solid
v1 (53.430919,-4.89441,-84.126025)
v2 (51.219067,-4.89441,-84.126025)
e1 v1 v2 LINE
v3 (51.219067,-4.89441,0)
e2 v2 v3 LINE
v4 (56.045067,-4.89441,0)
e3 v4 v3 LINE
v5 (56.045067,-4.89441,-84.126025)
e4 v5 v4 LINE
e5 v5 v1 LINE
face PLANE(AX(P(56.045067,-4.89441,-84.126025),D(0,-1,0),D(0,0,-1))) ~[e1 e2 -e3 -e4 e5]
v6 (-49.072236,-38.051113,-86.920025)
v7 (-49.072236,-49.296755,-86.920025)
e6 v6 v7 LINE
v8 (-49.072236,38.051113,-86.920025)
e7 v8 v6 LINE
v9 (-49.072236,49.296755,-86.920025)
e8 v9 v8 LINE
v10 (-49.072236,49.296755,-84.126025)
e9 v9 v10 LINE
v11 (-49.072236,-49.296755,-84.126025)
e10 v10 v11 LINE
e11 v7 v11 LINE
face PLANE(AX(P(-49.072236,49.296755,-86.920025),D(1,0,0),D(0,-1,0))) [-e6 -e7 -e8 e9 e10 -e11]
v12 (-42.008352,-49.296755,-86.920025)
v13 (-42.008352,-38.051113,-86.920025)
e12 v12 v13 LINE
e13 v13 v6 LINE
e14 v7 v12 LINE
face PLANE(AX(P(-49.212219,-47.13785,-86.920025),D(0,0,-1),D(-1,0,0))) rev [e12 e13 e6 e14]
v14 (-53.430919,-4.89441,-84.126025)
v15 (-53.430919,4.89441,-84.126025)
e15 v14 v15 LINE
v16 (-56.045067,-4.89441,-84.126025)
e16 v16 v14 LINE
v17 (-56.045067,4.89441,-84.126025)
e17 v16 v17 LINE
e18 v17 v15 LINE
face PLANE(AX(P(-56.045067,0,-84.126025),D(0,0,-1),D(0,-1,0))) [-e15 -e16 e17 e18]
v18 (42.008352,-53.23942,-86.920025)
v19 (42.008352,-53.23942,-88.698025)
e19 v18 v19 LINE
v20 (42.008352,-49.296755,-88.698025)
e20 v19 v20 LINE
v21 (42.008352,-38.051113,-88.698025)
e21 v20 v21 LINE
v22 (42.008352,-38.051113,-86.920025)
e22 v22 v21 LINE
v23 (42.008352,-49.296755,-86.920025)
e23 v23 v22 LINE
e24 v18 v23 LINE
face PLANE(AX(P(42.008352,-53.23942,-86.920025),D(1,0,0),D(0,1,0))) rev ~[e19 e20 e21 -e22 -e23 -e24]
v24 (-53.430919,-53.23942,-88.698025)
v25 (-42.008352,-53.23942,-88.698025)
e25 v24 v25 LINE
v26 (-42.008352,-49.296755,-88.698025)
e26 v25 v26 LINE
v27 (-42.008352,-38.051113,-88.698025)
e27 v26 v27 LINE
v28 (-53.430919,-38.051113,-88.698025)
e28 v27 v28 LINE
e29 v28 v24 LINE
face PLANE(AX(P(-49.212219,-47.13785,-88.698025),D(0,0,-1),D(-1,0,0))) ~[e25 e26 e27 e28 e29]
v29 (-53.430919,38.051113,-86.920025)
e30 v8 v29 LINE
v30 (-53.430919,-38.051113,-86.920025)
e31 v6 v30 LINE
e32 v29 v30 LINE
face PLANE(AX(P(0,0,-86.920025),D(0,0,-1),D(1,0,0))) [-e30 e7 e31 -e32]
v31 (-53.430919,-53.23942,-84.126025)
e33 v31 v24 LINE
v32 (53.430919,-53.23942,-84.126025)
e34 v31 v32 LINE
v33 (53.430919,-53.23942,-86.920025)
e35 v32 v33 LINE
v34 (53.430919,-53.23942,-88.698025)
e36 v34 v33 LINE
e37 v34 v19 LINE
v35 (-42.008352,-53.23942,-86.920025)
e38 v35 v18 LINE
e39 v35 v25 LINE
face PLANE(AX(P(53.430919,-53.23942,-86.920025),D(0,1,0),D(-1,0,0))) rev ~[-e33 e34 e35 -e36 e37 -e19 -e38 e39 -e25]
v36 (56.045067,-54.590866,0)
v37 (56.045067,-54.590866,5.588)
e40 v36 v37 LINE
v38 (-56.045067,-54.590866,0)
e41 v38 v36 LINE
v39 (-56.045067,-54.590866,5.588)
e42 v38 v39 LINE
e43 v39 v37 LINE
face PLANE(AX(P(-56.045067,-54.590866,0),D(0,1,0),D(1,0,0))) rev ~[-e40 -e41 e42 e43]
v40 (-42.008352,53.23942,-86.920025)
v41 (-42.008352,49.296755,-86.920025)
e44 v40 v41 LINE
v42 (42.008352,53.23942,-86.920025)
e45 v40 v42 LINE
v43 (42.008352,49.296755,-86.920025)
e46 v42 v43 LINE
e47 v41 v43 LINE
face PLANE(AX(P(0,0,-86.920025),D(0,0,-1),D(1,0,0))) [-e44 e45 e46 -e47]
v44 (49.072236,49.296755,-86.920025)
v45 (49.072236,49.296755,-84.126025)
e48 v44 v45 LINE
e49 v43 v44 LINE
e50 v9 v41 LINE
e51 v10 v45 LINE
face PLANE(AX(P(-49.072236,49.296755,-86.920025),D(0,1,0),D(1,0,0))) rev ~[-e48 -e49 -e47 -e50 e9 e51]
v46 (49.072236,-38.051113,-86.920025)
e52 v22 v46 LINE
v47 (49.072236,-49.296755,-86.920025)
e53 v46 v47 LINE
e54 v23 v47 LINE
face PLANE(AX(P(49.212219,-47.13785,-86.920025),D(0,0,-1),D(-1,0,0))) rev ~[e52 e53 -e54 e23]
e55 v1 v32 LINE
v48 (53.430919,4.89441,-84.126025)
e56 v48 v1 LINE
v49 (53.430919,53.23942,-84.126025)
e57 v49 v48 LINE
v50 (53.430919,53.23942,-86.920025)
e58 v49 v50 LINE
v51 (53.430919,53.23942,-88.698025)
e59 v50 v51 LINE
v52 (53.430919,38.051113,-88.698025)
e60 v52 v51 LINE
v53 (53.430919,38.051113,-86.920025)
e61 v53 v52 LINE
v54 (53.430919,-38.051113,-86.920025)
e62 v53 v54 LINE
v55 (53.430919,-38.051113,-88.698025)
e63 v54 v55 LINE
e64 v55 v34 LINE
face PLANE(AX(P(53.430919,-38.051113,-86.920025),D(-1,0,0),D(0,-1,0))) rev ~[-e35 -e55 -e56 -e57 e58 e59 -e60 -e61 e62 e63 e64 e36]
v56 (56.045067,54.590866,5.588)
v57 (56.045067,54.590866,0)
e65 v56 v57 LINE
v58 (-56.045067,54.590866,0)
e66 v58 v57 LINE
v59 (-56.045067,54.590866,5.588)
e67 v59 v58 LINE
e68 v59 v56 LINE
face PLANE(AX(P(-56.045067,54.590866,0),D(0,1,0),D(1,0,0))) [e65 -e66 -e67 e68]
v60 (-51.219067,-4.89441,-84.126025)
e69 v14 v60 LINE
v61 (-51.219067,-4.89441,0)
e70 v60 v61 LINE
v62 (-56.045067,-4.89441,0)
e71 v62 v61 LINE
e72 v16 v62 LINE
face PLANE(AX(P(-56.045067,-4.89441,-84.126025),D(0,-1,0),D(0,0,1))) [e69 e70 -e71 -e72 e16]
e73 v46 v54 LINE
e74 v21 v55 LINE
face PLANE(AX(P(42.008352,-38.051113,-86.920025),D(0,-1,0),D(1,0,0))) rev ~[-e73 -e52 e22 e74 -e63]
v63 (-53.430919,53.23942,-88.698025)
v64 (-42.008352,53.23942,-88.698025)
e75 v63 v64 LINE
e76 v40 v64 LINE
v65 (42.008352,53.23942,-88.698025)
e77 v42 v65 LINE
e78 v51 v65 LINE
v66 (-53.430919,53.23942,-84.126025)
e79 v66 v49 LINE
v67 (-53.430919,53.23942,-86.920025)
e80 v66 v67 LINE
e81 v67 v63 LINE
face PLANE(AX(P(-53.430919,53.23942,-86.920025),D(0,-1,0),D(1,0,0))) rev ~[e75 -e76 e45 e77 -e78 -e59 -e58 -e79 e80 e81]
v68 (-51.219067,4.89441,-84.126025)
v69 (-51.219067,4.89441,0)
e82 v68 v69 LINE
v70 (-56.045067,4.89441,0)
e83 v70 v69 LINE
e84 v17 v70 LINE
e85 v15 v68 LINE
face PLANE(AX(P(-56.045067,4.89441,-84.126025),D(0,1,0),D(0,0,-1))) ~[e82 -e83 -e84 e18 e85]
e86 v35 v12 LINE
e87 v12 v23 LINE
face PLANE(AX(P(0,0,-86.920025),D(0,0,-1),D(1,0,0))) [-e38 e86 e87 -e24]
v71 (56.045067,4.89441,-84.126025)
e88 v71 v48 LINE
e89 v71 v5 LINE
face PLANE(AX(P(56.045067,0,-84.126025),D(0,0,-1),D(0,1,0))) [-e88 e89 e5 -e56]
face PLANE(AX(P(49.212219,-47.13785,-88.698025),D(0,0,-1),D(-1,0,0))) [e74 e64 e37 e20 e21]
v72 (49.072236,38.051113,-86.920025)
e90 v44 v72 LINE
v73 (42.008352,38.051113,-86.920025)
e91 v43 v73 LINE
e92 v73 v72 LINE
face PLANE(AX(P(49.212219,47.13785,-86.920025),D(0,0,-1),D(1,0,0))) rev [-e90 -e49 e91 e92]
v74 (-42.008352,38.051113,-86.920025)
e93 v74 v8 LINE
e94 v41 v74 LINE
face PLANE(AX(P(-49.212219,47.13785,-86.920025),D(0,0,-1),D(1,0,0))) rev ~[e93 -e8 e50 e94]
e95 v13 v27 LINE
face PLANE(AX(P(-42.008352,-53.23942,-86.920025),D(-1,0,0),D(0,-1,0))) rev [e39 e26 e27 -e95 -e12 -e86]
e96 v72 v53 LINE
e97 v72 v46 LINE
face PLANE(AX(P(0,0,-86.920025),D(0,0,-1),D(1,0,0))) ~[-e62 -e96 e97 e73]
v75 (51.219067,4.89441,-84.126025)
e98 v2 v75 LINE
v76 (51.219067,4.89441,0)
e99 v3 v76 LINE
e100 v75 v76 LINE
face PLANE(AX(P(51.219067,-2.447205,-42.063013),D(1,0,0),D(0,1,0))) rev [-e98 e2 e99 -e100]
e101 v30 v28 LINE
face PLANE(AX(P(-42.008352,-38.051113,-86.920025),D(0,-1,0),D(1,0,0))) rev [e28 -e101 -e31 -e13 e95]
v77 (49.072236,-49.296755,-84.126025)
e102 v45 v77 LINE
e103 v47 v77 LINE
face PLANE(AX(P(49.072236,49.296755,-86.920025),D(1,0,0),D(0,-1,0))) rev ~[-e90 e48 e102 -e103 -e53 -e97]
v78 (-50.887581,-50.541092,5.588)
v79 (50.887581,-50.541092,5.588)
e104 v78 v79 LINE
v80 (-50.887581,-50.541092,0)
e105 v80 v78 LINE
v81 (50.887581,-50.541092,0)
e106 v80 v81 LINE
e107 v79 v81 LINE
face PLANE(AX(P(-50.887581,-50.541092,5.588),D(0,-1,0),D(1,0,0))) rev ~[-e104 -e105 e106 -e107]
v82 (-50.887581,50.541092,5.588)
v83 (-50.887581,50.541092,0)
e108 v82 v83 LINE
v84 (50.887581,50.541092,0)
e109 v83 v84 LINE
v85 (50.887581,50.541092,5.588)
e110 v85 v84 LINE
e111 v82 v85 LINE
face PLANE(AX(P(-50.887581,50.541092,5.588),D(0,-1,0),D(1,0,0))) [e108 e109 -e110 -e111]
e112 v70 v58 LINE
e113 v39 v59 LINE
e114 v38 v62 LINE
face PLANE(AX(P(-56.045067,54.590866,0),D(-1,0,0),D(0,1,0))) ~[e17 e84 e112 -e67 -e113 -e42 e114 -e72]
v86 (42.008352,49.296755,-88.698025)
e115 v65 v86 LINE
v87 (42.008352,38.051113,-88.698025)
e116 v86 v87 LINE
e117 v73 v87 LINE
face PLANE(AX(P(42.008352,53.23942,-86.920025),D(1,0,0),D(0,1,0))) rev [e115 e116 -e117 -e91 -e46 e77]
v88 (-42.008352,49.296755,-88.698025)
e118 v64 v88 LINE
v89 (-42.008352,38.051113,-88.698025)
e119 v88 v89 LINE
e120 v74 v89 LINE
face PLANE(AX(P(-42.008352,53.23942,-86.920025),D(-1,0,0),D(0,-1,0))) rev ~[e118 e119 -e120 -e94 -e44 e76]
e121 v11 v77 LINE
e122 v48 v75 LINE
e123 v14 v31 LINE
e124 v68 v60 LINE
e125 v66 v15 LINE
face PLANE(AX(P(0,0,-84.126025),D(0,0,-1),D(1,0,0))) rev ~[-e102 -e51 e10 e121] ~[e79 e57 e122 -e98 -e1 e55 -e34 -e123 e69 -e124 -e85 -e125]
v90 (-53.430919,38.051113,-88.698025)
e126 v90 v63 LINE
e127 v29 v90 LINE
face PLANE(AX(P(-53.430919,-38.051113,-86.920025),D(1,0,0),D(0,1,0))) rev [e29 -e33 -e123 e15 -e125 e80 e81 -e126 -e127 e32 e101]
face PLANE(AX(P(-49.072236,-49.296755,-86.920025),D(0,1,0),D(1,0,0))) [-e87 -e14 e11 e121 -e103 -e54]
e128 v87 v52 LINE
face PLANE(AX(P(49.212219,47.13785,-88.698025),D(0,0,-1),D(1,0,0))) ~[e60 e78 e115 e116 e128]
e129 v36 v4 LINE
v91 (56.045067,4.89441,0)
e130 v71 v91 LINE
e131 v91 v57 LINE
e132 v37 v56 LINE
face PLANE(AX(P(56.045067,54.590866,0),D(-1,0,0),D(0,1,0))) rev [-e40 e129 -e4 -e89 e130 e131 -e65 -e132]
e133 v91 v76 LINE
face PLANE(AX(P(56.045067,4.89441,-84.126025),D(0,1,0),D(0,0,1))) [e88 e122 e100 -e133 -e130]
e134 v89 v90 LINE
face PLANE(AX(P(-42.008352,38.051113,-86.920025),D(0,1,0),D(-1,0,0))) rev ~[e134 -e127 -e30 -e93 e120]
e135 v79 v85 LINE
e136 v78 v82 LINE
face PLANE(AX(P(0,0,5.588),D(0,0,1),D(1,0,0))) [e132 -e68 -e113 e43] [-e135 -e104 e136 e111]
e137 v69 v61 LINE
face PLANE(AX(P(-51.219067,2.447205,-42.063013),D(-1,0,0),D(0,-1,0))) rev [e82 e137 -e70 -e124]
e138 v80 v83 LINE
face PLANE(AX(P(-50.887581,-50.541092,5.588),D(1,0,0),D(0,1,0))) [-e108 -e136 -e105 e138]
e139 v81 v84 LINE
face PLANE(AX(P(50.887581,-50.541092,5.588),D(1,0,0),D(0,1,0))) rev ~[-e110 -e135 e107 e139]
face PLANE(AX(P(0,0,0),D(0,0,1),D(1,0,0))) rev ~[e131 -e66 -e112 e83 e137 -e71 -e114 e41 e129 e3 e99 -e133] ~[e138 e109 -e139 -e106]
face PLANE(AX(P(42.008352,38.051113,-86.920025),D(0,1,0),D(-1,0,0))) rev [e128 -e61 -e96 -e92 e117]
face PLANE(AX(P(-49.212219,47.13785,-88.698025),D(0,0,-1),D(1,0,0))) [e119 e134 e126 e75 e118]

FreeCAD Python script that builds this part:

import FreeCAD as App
import Part
import Sketcher
Q = App.Units.Quantity

doc = App.newDocument("Part")
body = doc.addObject("PartDesign::Body", "Body")

sketch1 = body.newObject("Sketcher::SketchObject", "Sketch")
sketch1.AttachmentSupport = (doc.getObject("XY_Plane"), [""])
sketch1.MapMode = "FlatFace"
sketch1.addGeometry([
    Part.LineSegment(App.Vector(-56.045067, 54.590866, 0), App.Vector(-56.045067, -54.590866, 0)),
    Part.LineSegment(App.Vector(-56.045067, -54.590866, 0), App.Vector(56.045067, -54.590866, 0)),
    Part.LineSegment(App.Vector(56.045067, -54.590866, 0), App.Vector(56.045067, 54.590866, 0)),
    Part.LineSegment(App.Vector(56.045067, 54.590866, 0), App.Vector(-56.045067, 54.590866, 0)),
], False)
sketch1.addConstraint([
    Sketcher.Constraint("Coincident", 0, 2, 1, 1),
    Sketcher.Constraint("Coincident", 1, 2, 2, 1),
    Sketcher.Constraint("Coincident", 2, 2, 3, 1),
    Sketcher.Constraint("Coincident", 3, 2, 0, 1),
    Sketcher.Constraint("Vertical", 0),
    Sketcher.Constraint("Horizontal", 1),
    Sketcher.Constraint("Vertical", 2),
    Sketcher.Constraint("Horizontal", 3),
    Sketcher.Constraint("Symmetric", 0, 2, 2, 2, -1, 1),
    Sketcher.Constraint("DistanceY", 0, 2, 0, 1, Q("109.181732 mm")),
    Sketcher.Constraint("DistanceX", 1, 1, 1, 2, Q("112.090133 mm")),
])
pad1 = body.newObject("PartDesign::Pad", "Pad")
pad1.Profile = sketch1
pad1.Length = Q("0.22 in")

sketch2 = body.newObject("Sketcher::SketchObject", "Sketch001")
sketch2.AttachmentSupport = (doc.getObject("XY_Plane"), [""])
sketch2.MapMode = "FlatFace"
sketch2.AttachmentOffset = App.Placement(App.Vector(0, 0, 0.22 * 25.4), App.Rotation())
sketch2.addGeometry([
    Part.LineSegment(App.Vector(-50.887581, 50.541092, 0), App.Vector(-50.887581, -50.541092, 0)),
    Part.LineSegment(App.Vector(-50.887581, -50.541092, 0), App.Vector(50.887581, -50.541092, 0)),
    Part.LineSegment(App.Vector(50.887581, -50.541092, 0), App.Vector(50.887581, 50.541092, 0)),
    Part.LineSegment(App.Vector(50.887581, 50.541092, 0), App.Vector(-50.887581, 50.541092, 0)),
], False)
sketch2.addConstraint([
    Sketcher.Constraint("Coincident", 0, 2, 1, 1),
    Sketcher.Constraint("Coincident", 1, 2, 2, 1),
    Sketcher.Constraint("Coincident", 2, 2, 3, 1),
    Sketcher.Constraint("Coincident", 3, 2, 0, 1),
    Sketcher.Constraint("Vertical", 0),
    Sketcher.Constraint("Horizontal", 1),
    Sketcher.Constraint("Vertical", 2),
    Sketcher.Constraint("Horizontal", 3),
    Sketcher.Constraint("Symmetric", 0, 2, 2, 2, -1, 1),
    Sketcher.Constraint("DistanceX", 1, 1, 1, 2, Q("101.775162 mm")),
    Sketcher.Constraint("DistanceY", 0, 2, 0, 1, Q("101.082183 mm")),
])
pocket1 = body.newObject("PartDesign::Pocket", "Pocket")
pocket1.Profile = sketch2
pocket1.Length = Q("1 in")

sketch3 = body.newObject("Sketcher::SketchObject", "Sketch002")
sketch3.AttachmentSupport = (doc.getObject("YZ_Plane"), [""])
sketch3.MapMode = "FlatFace"
sketch3.AttachmentOffset = App.Placement(App.Vector(0, 0, 56.045067), App.Rotation())
sketch3.addGeometry([
    Part.LineSegment(App.Vector(0, 0, 0), App.Vector(0, -84.126025, 0)),
    Part.LineSegment(App.Vector(0, -84.126025, 0), App.Vector(4.89441, -84.126025, 0)),
    Part.LineSegment(App.Vector(4.89441, -84.126025, 0), App.Vector(4.89441, 0, 0)),
    Part.LineSegment(App.Vector(4.89441, 0, 0), App.Vector(0, 0, 0)),
], False)
sketch3.addConstraint([
    Sketcher.Constraint("Coincident", 0, 2, 1, 1),
    Sketcher.Constraint("Coincident", 1, 2, 2, 1),
    Sketcher.Constraint("Coincident", 2, 2, 3, 1),
    Sketcher.Constraint("Coincident", 3, 2, 0, 1),
    Sketcher.Constraint("Vertical", 0),
    Sketcher.Constraint("Horizontal", 1),
    Sketcher.Constraint("Vertical", 2),
    Sketcher.Constraint("Horizontal", 3),
    Sketcher.Constraint("Coincident", 3, 2, -1, 1),
    Sketcher.Constraint("DistanceX", 1, 1, 1, 2, Q("4.89441 mm")),
    Sketcher.Constraint("DistanceY", 0, 2, 0, 1, Q("84.126025 mm")),
])
pad2 = body.newObject("PartDesign::Pad", "Pad001")
pad2.Profile = sketch3
pad2.Length = Q("0.19 in")
pad2.Reversed = True
body2 = doc.addObject("PartDesign::Body", "Body001")
doc.recompute()

body2.BaseFeature = body
doc.recompute()

mirroring = doc.addObject("Part::Mirroring", "Mirroring")
mirroring.Source = body
mirroring.Base = App.Vector(0, 0, 0)
mirroring.Normal = App.Vector(1, 0, 0)
body3 = doc.addObject("PartDesign::Body", "Body002")
body3.BaseFeature = mirroring
boolean = body2.newObject("PartDesign::Boolean", "Boolean")
boolean.Type = "Fuse"
boolean.addObjects([body3])
doc.recompute()

sketch4 = body2.newObject("Sketcher::SketchObject", "Sketch003")
sketch4.AttachmentSupport = (doc.getObject("XY_Plane001"), [""])
sketch4.MapMode = "FlatFace"
sketch4.AttachmentOffset = App.Placement(App.Vector(0, 0, -84.126025), App.Rotation())
sketch4.addGeometry([
    Part.LineSegment(App.Vector(-53.430919, -53.23942, 0), App.Vector(-53.430919, 53.23942, 0)),
    Part.LineSegment(App.Vector(-53.430919, 53.23942, 0), App.Vector(53.430919, 53.23942, 0)),
    Part.LineSegment(App.Vector(53.430919, 53.23942, 0), App.Vector(53.430919, -53.23942, 0)),
    Part.LineSegment(App.Vector(53.430919, -53.23942, 0), App.Vector(-53.430919, -53.23942, 0)),
], False)
sketch4.addConstraint([
    Sketcher.Constraint("Coincident", 0, 2, 1, 1),
    Sketcher.Constraint("Coincident", 1, 2, 2, 1),
    Sketcher.Constraint("Coincident", 2, 2, 3, 1),
    Sketcher.Constraint("Coincident", 3, 2, 0, 1),
    Sketcher.Constraint("Vertical", 0),
    Sketcher.Constraint("Horizontal", 1),
    Sketcher.Constraint("Vertical", 2),
    Sketcher.Constraint("Horizontal", 3),
    Sketcher.Constraint("Symmetric", 0, 2, 2, 2, -1, 1),
    Sketcher.Constraint("DistanceY", 0, 1, 0, 2, Q("106.47884 mm")),
    Sketcher.Constraint("DistanceX", 1, 1, 1, 2, Q("106.861837 mm")),
])
pad3 = body2.newObject("PartDesign::Pad", "Pad002")
pad3.Profile = sketch4
pad3.Length = Q("0.11 in")
pad3.Reversed = True

sketch5 = body2.newObject("Sketcher::SketchObject", "Sketch004")
sketch5.AttachmentSupport = (doc.getObject("XY_Plane001"), [""])
sketch5.MapMode = "FlatFace"
sketch5.AttachmentOffset = App.Placement(App.Vector(0, 0, -86.920025), App.Rotation())
sketch5.addGeometry([
    Part.LineSegment(App.Vector(-49.072236, -49.296755, 0), App.Vector(-49.072236, 49.296755, 0)),
    Part.LineSegment(App.Vector(-49.072236, 49.296755, 0), App.Vector(49.072236, 49.296755, 0)),
    Part.LineSegment(App.Vector(49.072236, 49.296755, 0), App.Vector(49.072236, -49.296755, 0)),
    Part.LineSegment(App.Vector(49.072236, -49.296755, 0), App.Vector(-49.072236, -49.296755, 0)),
], False)
sketch5.addConstraint([
    Sketcher.Constraint("Coincident", 0, 2, 1, 1),
    Sketcher.Constraint("Coincident", 1, 2, 2, 1),
    Sketcher.Constraint("Coincident", 2, 2, 3, 1),
    Sketcher.Constraint("Coincident", 3, 2, 0, 1),
    Sketcher.Constraint("Vertical", 0),
    Sketcher.Constraint("Horizontal", 1),
    Sketcher.Constraint("Vertical", 2),
    Sketcher.Constraint("Horizontal", 3),
    Sketcher.Constraint("Symmetric", 0, 2, 2, 2, -1, 1),
    Sketcher.Constraint("DistanceX", 1, 1, 1, 2, Q("98.144472 mm")),
    Sketcher.Constraint("DistanceY", 0, 1, 0, 2, Q("98.593511 mm")),
])
pocket2 = body2.newObject("PartDesign::Pocket", "Pocket001")
pocket2.Profile = sketch5
pocket2.Length = Q("1 in")
pocket2.Reversed = True

sketch6 = body2.newObject("Sketcher::SketchObject", "Sketch005")
sketch6.AttachmentSupport = (doc.getObject("XY_Plane001"), [""])
sketch6.MapMode = "FlatFace"
sketch6.AttachmentOffset = App.Placement(App.Vector(0, 0, -86.920025), App.Rotation())
sketch6.addGeometry([
    Part.LineSegment(App.Vector(-53.430919, 38.051113, 0), App.Vector(-53.430919, 53.23942, 0)),
    Part.LineSegment(App.Vector(-53.430919, 53.23942, 0), App.Vector(-42.008352, 53.23942, 0)),
    Part.LineSegment(App.Vector(-42.008352, 53.23942, 0), App.Vector(-42.008352, 49.296755, 0)),
    Part.LineSegment(App.Vector(-42.008352, 49.296755, 0), App.Vector(-42.008352, 38.051113, 0)),
    Part.LineSegment(App.Vector(-42.008352, 38.051113, 0), App.Vector(-53.430919, 38.051113, 0)),
], False)
sketch6.addConstraint([
    Sketcher.Constraint("Coincident", 0, 2, 1, 1),
    Sketcher.Constraint("Coincident", 1, 2, 2, 1),
    Sketcher.Constraint("Coincident", 2, 2, 3, 1),
    Sketcher.Constraint("Coincident", 3, 2, 4, 1),
    Sketcher.Constraint("Coincident", 4, 2, 0, 1),
    Sketcher.Constraint("Vertical", 0),
    Sketcher.Constraint("Horizontal", 1),
    Sketcher.Constraint("Vertical", 2),
    Sketcher.Constraint("Vertical", 3),
    Sketcher.Constraint("Horizontal", 4),
    Sketcher.Constraint("DistanceY", 3, 2, 3, 1, Q("11.245642 mm")),
    Sketcher.Constraint("DistanceX", 1, 1, 1, 2, Q("11.422567 mm")),
    Sketcher.Constraint("DistanceY", 0, 1, 0, 2, Q("15.188307 mm")),
    Sketcher.Constraint("DistanceX", 0, 2, -1, 1, Q("53.430919 mm")),
    Sketcher.Constraint("DistanceY", -1, 1, 0, 2, Q("53.23942 mm")),
])
pad4 = body2.newObject("PartDesign::Pad", "Pad003")
pad4.Profile = sketch6
pad4.Length = Q("0.07 in")
pad4.Reversed = True
body4 = doc.addObject("PartDesign::Body", "Body003")
doc.recompute()

body4.BaseFeature = body2
doc.recompute()

mirroring2 = doc.addObject("Part::Mirroring", "Mirroring001")
mirroring2.Source = body2
mirroring2.Base = App.Vector(0, 0, 0)
mirroring2.Normal = App.Vector(0, -1, 0)
body5 = doc.addObject("PartDesign::Body", "Body004")
body5.BaseFeature = mirroring2
boolean2 = body4.newObject("PartDesign::Boolean", "Boolean001")
boolean2.Type = "Fuse"
boolean2.addObjects([body5])
doc.recompute()
body6 = doc.addObject("PartDesign::Body", "Body005")
doc.recompute()

body6.BaseFeature = body4
doc.recompute()

mirroring3 = doc.addObject("Part::Mirroring", "Mirroring002")
mirroring3.Source = body4
mirroring3.Base = App.Vector(0, 0, 0)
mirroring3.Normal = App.Vector(1, 0, 0)
body7 = doc.addObject("PartDesign::Body", "Body006")
body7.BaseFeature = mirroring3
boolean3 = body6.newObject("PartDesign::Boolean", "Boolean002")
boolean3.Type = "Fuse"
boolean3.addObjects([body7])
doc.recompute()

sketch7 = body6.newObject("Sketcher::SketchObject", "Sketch006")
sketch7.AttachmentSupport = (doc.getObject("XY_Plane005"), [""])
sketch7.MapMode = "FlatFace"
sketch7.AttachmentOffset = App.Placement(App.Vector(0, 0, 0.22 * 25.4), App.Rotation())
sketch7.addGeometry([
    Part.LineSegment(App.Vector(-56.045067, 54.590866, 0), App.Vector(-56.045067, -54.590866, 0)),
    Part.LineSegment(App.Vector(-56.045067, -54.590866, 0), App.Vector(56.045067, -54.590866, 0)),
    Part.LineSegment(App.Vector(56.045067, -54.590866, 0), App.Vector(56.045067, 54.590866, 0)),
    Part.LineSegment(App.Vector(56.045067, 54.590866, 0), App.Vector(-56.045067, 54.590866, 0)),
    Part.LineSegment(App.Vector(50.887581, -50.541092, 0), App.Vector(-50.887581, -50.541092, 0)),
    Part.LineSegment(App.Vector(-50.887581, -50.541092, 0), App.Vector(-50.887581, 50.541092, 0)),
    Part.LineSegment(App.Vector(-50.887581, 50.541092, 0), App.Vector(50.887581, 50.541092, 0)),
    Part.LineSegment(App.Vector(50.887581, 50.541092, 0), App.Vector(50.887581, -50.541092, 0)),
], False)
sketch7.addConstraint([
    Sketcher.Constraint("Coincident", 0, 2, 1, 1),
    Sketcher.Constraint("Coincident", 1, 2, 2, 1),
    Sketcher.Constraint("Coincident", 2, 2, 3, 1),
    Sketcher.Constraint("Coincident", 3, 2, 0, 1),
    Sketcher.Constraint("Coincident", 4, 2, 5, 1),
    Sketcher.Constraint("Coincident", 5, 2, 6, 1),
    Sketcher.Constraint("Coincident", 6, 2, 7, 1),
    Sketcher.Constraint("Coincident", 7, 2, 4, 1),
    Sketcher.Constraint("Vertical", 0),
    Sketcher.Constraint("Horizontal", 1),
    Sketcher.Constraint("Vertical", 2),
    Sketcher.Constraint("Horizontal", 3),
    Sketcher.Constraint("Horizontal", 4),
    Sketcher.Constraint("Vertical", 5),
    Sketcher.Constraint("Horizontal", 6),
    Sketcher.Constraint("Vertical", 7),
    Sketcher.Constraint("Symmetric", 0, 2, 2, 2, -1, 1),
    Sketcher.Constraint("Symmetric", 4, 2, 6, 2, -1, 1),
    Sketcher.Constraint("DistanceX", 4, 2, 4, 1, Q("101.775162 mm")),
    Sketcher.Constraint("DistanceY", 0, 2, 0, 1, Q("109.181732 mm")),
    Sketcher.Constraint("DistanceX", 1, 1, 1, 2, Q("112.090133 mm")),
    Sketcher.Constraint("DistanceY", 5, 1, 5, 2, Q("101.082183 mm")),
])
pad5 = body6.newObject("PartDesign::Pad", "Pad004")
pad5.Profile = sketch7
pad5.Length = Q("0.04 in")
pad5.Reversed = True
mirroring.Visibility = False
mirroring2.Visibility = False
mirroring3.Visibility = False

doc.recompute()
